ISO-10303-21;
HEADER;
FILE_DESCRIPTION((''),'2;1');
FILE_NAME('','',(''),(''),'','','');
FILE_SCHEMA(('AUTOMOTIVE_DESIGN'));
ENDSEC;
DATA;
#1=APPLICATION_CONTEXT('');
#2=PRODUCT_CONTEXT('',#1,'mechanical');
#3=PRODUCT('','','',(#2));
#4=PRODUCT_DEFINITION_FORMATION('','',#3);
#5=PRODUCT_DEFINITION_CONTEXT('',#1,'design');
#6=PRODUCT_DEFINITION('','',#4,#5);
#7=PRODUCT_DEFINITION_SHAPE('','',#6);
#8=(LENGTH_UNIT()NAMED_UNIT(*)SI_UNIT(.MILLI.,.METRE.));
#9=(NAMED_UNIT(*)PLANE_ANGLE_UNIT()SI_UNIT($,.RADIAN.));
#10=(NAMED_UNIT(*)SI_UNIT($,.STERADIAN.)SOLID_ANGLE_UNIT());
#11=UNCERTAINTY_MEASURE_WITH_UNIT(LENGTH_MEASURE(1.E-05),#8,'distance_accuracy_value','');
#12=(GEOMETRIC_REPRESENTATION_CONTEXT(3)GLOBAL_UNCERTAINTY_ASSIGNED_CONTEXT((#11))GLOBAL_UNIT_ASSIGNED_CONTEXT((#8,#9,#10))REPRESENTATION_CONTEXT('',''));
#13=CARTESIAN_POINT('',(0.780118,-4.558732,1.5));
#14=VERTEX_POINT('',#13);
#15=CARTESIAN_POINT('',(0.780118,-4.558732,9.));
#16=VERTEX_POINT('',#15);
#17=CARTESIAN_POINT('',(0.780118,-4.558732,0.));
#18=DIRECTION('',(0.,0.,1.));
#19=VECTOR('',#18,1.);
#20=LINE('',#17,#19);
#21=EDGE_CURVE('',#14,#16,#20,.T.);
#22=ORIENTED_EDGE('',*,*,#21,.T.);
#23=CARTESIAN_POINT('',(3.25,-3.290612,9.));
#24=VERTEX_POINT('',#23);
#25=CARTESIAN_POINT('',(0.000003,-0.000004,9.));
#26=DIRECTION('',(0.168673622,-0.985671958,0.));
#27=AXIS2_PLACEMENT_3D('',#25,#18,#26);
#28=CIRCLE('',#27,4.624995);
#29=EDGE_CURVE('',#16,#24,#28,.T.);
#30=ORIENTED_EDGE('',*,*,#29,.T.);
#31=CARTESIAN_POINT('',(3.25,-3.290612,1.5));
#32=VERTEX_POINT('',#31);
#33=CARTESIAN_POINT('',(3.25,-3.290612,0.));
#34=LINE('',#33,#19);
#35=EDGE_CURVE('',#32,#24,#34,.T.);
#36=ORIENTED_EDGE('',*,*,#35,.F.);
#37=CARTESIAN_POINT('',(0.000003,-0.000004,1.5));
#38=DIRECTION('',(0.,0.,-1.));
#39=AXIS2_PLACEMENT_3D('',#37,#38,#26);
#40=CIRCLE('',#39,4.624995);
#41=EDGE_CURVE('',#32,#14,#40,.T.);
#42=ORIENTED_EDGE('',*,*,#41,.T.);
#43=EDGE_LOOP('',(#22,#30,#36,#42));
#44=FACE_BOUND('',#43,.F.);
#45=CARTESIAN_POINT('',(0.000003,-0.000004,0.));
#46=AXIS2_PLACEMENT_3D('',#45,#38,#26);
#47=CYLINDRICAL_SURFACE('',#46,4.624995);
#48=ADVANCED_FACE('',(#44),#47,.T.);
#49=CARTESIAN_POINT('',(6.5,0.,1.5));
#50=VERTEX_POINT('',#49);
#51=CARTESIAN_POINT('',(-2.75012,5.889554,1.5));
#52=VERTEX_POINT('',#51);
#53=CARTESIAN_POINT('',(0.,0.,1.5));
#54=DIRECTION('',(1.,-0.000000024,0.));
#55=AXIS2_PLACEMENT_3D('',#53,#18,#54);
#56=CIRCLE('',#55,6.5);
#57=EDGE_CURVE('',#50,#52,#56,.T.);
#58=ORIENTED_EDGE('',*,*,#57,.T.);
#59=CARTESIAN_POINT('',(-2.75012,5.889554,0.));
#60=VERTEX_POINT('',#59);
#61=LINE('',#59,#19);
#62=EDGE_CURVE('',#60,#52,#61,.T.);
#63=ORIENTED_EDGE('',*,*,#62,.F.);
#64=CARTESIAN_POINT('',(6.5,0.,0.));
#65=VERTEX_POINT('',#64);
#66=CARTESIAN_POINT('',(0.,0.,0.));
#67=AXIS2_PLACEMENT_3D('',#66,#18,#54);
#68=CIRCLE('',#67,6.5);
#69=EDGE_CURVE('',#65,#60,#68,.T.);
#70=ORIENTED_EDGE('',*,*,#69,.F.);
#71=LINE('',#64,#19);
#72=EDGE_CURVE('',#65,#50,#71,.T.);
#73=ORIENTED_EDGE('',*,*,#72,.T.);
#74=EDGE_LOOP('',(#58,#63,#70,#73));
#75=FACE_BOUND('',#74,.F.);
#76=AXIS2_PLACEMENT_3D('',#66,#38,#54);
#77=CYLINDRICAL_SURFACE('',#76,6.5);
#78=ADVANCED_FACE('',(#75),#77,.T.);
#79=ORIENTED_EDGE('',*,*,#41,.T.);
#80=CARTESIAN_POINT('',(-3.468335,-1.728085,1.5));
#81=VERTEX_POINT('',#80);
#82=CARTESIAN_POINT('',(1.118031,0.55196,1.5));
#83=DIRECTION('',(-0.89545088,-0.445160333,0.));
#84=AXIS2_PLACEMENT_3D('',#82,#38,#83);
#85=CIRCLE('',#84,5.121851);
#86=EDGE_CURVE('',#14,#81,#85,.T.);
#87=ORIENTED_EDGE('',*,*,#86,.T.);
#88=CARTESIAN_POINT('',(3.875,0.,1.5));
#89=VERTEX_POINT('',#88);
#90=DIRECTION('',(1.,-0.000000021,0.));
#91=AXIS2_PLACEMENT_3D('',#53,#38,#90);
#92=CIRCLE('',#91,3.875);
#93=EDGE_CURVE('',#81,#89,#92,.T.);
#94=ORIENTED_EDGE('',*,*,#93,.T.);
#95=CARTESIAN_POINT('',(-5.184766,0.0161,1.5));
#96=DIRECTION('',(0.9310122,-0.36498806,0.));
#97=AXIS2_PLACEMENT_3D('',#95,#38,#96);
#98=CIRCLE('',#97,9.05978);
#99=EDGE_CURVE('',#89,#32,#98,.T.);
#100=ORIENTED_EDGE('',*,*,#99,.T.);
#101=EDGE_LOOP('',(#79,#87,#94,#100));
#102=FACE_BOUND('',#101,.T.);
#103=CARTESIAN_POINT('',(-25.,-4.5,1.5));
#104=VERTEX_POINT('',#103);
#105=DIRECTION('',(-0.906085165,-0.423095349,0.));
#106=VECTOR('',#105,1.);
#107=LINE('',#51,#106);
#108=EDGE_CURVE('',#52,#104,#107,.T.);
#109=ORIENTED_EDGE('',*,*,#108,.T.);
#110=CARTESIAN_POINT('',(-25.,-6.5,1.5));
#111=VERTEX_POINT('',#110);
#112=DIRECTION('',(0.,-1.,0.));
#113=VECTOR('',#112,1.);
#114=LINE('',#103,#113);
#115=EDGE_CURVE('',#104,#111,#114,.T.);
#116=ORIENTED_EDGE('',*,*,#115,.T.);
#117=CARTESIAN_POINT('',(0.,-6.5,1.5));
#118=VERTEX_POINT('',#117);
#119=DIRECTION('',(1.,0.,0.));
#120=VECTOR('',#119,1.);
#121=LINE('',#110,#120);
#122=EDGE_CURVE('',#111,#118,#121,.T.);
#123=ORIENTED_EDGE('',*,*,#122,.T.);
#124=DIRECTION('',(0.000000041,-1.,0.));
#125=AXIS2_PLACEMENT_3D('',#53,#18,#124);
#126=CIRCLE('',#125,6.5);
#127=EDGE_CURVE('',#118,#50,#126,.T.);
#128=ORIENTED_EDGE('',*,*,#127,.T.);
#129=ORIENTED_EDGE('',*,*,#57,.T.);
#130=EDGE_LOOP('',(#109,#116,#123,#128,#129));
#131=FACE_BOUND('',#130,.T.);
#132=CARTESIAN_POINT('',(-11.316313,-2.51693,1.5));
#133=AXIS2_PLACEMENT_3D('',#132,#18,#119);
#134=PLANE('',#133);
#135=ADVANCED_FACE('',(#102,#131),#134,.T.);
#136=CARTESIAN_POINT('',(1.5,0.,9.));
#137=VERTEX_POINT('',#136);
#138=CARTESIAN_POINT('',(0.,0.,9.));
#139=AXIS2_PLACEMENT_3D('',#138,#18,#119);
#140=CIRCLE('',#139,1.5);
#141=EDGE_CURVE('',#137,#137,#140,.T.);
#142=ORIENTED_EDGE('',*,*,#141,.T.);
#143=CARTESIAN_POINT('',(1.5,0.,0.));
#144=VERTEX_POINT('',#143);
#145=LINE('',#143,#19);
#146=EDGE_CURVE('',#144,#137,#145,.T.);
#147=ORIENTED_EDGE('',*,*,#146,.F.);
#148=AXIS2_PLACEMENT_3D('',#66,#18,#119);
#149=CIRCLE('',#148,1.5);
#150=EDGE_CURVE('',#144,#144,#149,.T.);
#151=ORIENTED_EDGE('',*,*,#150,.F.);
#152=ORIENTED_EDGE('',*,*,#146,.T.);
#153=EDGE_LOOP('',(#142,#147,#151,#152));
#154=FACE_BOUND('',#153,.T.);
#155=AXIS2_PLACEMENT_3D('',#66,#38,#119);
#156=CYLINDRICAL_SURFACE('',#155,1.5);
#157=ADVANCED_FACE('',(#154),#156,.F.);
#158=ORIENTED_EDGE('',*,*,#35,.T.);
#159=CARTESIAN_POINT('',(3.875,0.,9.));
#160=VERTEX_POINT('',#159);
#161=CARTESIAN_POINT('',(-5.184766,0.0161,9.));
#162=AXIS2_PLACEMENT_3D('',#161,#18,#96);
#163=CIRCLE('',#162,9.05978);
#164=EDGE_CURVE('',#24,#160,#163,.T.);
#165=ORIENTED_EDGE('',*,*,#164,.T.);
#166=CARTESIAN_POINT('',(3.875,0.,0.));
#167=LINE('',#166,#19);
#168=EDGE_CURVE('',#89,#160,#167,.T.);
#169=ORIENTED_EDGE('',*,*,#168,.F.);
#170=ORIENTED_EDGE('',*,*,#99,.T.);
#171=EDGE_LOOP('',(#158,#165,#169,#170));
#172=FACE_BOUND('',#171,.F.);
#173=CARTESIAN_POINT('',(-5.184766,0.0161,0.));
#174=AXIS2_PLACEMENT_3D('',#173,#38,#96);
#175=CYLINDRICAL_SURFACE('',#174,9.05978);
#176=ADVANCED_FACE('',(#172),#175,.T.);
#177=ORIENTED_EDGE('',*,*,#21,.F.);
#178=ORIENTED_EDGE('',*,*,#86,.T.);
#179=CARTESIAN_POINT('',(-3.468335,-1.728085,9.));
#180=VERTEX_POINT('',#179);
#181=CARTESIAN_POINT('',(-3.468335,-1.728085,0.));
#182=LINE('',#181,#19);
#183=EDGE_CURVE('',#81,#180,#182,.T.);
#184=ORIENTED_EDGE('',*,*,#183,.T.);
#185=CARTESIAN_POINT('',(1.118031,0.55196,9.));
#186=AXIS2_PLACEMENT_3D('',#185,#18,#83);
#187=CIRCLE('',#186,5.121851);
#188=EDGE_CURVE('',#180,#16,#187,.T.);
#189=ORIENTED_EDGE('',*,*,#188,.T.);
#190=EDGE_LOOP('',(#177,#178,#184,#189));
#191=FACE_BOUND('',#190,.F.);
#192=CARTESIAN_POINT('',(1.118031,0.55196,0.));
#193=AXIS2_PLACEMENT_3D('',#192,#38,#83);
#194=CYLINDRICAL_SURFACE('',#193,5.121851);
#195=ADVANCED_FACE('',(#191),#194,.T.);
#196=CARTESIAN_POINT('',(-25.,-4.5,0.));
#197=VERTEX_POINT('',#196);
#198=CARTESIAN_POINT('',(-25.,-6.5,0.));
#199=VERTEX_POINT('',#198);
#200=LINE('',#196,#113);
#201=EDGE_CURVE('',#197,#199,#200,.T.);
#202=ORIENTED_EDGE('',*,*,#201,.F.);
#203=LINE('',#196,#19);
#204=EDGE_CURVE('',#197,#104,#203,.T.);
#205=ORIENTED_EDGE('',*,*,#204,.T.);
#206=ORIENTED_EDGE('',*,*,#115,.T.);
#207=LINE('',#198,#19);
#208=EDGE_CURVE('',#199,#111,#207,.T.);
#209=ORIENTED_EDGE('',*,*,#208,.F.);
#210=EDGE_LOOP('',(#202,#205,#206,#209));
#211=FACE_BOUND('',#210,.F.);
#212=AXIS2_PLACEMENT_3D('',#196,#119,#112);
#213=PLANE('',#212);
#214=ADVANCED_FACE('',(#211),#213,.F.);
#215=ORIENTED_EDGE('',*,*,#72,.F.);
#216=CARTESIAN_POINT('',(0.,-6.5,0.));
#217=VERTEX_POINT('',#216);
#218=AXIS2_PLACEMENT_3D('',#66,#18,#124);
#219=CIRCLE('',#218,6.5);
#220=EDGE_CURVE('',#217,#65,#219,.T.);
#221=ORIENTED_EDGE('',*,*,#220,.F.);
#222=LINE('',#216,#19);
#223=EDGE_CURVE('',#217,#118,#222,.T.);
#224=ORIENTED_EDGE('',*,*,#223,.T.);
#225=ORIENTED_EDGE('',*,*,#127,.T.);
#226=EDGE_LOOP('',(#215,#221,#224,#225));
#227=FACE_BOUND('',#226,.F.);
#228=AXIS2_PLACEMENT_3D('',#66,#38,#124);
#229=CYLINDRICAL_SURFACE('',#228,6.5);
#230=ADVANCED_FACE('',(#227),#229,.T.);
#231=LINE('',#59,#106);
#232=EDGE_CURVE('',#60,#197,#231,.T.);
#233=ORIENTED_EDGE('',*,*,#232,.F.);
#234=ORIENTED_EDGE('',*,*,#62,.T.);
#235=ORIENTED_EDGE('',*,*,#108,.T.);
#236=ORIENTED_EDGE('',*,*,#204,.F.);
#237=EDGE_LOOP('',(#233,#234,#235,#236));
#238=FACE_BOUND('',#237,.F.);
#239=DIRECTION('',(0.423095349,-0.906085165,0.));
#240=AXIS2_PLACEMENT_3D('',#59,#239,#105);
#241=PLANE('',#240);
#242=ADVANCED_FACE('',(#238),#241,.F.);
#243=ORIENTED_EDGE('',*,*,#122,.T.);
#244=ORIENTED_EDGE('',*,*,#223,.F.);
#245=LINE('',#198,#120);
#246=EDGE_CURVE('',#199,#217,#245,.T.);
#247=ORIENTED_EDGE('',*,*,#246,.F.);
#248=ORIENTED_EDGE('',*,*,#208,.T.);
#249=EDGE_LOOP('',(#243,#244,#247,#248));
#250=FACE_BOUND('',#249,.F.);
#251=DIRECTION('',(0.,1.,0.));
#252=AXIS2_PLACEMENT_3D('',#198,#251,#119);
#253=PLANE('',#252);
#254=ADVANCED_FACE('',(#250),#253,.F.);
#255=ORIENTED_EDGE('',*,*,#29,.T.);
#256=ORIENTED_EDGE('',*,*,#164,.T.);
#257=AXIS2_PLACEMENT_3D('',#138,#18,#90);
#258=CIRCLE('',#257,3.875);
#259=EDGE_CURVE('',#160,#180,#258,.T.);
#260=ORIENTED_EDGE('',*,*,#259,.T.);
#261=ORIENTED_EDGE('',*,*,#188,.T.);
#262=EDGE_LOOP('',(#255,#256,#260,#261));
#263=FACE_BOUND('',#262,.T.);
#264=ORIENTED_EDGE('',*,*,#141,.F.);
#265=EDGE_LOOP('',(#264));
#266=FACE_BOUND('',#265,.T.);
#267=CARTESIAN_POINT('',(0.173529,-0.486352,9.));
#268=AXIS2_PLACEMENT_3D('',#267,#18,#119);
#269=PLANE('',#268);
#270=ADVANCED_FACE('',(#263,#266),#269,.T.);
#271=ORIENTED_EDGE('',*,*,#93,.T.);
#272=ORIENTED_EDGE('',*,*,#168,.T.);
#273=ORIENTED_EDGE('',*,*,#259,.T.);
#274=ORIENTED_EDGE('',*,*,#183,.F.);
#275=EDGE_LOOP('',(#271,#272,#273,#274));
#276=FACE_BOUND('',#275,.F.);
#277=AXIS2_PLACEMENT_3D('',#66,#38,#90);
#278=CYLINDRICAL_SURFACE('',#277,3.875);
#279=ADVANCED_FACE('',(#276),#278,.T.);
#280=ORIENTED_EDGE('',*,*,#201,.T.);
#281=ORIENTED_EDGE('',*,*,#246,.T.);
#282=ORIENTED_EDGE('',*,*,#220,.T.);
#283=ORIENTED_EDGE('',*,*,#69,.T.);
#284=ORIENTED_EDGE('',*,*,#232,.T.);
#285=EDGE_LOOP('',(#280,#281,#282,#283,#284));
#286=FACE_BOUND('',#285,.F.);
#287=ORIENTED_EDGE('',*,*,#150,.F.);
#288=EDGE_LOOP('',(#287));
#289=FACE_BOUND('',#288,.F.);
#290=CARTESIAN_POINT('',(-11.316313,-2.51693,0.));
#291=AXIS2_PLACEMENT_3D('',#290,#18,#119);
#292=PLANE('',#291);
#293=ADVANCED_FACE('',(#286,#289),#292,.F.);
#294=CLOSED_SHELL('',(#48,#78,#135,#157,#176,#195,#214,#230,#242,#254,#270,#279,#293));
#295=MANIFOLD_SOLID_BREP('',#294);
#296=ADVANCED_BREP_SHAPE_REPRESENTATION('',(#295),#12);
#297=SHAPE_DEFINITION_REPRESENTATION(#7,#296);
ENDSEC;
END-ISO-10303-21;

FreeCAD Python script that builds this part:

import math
import FreeCAD as App
import Part
import Sketcher

V = App.Vector

doc = App.newDocument("Part")
body = doc.addObject("PartDesign::Body", "Body")

# Sketch on XY plane
sketch1 = doc.addObject("Sketcher::SketchObject", "Sketch")
body.addObject(sketch1)
sketch1.AttachmentSupport = (doc.XY_Plane, [""])
sketch1.MapMode = "FlatFace"
sketch1.addGeometry([
    Part.LineSegment(V(-2.8, 5.9, 0), V(-25, -4.5, 0)),  # 0
    Part.LineSegment(V(-25, -4.5, 0), V(-25, -6.5, 0)),  # 1
    Part.LineSegment(V(-25, -6.5, 0), V(0, -6.5, 0)),  # 2
    Part.ArcOfCircle(Part.Circle(V(0, 0, 0), V(0, 0, 1), 6.5), math.radians(-90), math.radians(0)),  # 3
    Part.ArcOfCircle(Part.Circle(V(0, 0, 0), V(0, 0, 1), 6.5), math.radians(0), math.radians(115)),  # 4
    Part.Circle(V(0, 0, 0), V(0, 0, 1), 1.5),  # 5
], False)
sketch1.addConstraint([
    Sketcher.Constraint("Coincident", 0, 2, 1, 1),
    Sketcher.Constraint("Coincident", 1, 2, 2, 1),
    Sketcher.Constraint("Tangent", 2, 2, 3, 1),
    Sketcher.Constraint("Tangent", 3, 2, 4, 1),
    Sketcher.Constraint("Tangent", 4, 2, 0, 1),
    Sketcher.Constraint("Vertical", 1),
    Sketcher.Constraint("Horizontal", 2),
    Sketcher.Constraint("Coincident", 3, 3, -1, 1),
    Sketcher.Constraint("Coincident", 5, 3, -1, 1),
    Sketcher.Constraint("Equal", 3, 4),
    Sketcher.Constraint("PointOnObject", 3, 2, -1),
    Sketcher.Constraint("Diameter", 5, 3.0),
    Sketcher.Constraint("Radius", 3, 6.5),
    Sketcher.Constraint("DistanceX", 2, 1, 2, 2, 25.0),
    Sketcher.Constraint("DistanceY", 1, 2, 1, 1, 2.0),
])
pad1 = doc.addObject("PartDesign::Pad", "Pad")
body.addObject(pad1)
pad1.Profile = sketch1
pad1.Length = 1.5

# Sketch on XY plane
sketch2 = doc.addObject("Sketcher::SketchObject", "Sketch001")
body.addObject(sketch2)
sketch2.AttachmentSupport = (doc.XY_Plane, [""])
sketch2.MapMode = "FlatFace"
sketch2.addGeometry([
    Part.ArcOfCircle(Part.Circle(V(0.000003, -0.000004, 0), V(0, 0, 1), 4.624995), math.radians(-80.28929), math.radians(-45.355749)),  # 0
    Part.ArcOfCircle(Part.Circle(V(-5.184766, 0.0161, 0), V(0, 0, 1), 9.05978), math.radians(-21.406848), math.radians(-0.101817)),  # 1
    Part.ArcOfCircle(Part.Circle(V(0, 0, 0), V(0, 0, 1), 3.875), math.radians(-0.000001), math.radians(206.484611)),  # 2
    Part.ArcOfCircle(Part.Circle(V(1.118031, 0.55196, 0), V(0, 0, 1), 5.121851), math.radians(-153.566403), math.radians(-93.782822)),  # 3
    Part.Circle(V(0, 0, 0), V(0, 0, 1), 1.5),  # 4
], False)
sketch2.addConstraint([
    Sketcher.Constraint("Coincident", 0, 2, 1, 1),
    Sketcher.Constraint("Coincident", 1, 2, 2, 1),
    Sketcher.Constraint("Coincident", 2, 2, 3, 1),
    Sketcher.Constraint("Coincident", 3, 2, 0, 1),
    Sketcher.Constraint("Coincident", 0, 3, -1, 1),
    Sketcher.Constraint("Coincident", 2, 3, -1, 1),
    Sketcher.Constraint("Coincident", 4, 3, -1, 1),
    Sketcher.Constraint("PointOnObject", 1, 2, -1),
    Sketcher.Constraint("Diameter", 4, 3.0),
    Sketcher.Constraint("Radius", 2, 3.875),
    Sketcher.Constraint("DistanceX", -1, 1, 0, 2, 3.25),
    Sketcher.Constraint("Radius", 1, 9.05978),
    Sketcher.Constraint("Radius", 3, 5.121851),
    Sketcher.Constraint("Radius", 0, 4.624995),
    Sketcher.Constraint("DistanceX", -1, 1, 3, 3, 1.118031),
    Sketcher.Constraint("DistanceY", -1, 1, 3, 3, 0.55196),
])
pad2 = doc.addObject("PartDesign::Pad", "Pad001")
body.addObject(pad2)
pad2.Profile = sketch2
pad2.Length = 9

doc.recompute()
